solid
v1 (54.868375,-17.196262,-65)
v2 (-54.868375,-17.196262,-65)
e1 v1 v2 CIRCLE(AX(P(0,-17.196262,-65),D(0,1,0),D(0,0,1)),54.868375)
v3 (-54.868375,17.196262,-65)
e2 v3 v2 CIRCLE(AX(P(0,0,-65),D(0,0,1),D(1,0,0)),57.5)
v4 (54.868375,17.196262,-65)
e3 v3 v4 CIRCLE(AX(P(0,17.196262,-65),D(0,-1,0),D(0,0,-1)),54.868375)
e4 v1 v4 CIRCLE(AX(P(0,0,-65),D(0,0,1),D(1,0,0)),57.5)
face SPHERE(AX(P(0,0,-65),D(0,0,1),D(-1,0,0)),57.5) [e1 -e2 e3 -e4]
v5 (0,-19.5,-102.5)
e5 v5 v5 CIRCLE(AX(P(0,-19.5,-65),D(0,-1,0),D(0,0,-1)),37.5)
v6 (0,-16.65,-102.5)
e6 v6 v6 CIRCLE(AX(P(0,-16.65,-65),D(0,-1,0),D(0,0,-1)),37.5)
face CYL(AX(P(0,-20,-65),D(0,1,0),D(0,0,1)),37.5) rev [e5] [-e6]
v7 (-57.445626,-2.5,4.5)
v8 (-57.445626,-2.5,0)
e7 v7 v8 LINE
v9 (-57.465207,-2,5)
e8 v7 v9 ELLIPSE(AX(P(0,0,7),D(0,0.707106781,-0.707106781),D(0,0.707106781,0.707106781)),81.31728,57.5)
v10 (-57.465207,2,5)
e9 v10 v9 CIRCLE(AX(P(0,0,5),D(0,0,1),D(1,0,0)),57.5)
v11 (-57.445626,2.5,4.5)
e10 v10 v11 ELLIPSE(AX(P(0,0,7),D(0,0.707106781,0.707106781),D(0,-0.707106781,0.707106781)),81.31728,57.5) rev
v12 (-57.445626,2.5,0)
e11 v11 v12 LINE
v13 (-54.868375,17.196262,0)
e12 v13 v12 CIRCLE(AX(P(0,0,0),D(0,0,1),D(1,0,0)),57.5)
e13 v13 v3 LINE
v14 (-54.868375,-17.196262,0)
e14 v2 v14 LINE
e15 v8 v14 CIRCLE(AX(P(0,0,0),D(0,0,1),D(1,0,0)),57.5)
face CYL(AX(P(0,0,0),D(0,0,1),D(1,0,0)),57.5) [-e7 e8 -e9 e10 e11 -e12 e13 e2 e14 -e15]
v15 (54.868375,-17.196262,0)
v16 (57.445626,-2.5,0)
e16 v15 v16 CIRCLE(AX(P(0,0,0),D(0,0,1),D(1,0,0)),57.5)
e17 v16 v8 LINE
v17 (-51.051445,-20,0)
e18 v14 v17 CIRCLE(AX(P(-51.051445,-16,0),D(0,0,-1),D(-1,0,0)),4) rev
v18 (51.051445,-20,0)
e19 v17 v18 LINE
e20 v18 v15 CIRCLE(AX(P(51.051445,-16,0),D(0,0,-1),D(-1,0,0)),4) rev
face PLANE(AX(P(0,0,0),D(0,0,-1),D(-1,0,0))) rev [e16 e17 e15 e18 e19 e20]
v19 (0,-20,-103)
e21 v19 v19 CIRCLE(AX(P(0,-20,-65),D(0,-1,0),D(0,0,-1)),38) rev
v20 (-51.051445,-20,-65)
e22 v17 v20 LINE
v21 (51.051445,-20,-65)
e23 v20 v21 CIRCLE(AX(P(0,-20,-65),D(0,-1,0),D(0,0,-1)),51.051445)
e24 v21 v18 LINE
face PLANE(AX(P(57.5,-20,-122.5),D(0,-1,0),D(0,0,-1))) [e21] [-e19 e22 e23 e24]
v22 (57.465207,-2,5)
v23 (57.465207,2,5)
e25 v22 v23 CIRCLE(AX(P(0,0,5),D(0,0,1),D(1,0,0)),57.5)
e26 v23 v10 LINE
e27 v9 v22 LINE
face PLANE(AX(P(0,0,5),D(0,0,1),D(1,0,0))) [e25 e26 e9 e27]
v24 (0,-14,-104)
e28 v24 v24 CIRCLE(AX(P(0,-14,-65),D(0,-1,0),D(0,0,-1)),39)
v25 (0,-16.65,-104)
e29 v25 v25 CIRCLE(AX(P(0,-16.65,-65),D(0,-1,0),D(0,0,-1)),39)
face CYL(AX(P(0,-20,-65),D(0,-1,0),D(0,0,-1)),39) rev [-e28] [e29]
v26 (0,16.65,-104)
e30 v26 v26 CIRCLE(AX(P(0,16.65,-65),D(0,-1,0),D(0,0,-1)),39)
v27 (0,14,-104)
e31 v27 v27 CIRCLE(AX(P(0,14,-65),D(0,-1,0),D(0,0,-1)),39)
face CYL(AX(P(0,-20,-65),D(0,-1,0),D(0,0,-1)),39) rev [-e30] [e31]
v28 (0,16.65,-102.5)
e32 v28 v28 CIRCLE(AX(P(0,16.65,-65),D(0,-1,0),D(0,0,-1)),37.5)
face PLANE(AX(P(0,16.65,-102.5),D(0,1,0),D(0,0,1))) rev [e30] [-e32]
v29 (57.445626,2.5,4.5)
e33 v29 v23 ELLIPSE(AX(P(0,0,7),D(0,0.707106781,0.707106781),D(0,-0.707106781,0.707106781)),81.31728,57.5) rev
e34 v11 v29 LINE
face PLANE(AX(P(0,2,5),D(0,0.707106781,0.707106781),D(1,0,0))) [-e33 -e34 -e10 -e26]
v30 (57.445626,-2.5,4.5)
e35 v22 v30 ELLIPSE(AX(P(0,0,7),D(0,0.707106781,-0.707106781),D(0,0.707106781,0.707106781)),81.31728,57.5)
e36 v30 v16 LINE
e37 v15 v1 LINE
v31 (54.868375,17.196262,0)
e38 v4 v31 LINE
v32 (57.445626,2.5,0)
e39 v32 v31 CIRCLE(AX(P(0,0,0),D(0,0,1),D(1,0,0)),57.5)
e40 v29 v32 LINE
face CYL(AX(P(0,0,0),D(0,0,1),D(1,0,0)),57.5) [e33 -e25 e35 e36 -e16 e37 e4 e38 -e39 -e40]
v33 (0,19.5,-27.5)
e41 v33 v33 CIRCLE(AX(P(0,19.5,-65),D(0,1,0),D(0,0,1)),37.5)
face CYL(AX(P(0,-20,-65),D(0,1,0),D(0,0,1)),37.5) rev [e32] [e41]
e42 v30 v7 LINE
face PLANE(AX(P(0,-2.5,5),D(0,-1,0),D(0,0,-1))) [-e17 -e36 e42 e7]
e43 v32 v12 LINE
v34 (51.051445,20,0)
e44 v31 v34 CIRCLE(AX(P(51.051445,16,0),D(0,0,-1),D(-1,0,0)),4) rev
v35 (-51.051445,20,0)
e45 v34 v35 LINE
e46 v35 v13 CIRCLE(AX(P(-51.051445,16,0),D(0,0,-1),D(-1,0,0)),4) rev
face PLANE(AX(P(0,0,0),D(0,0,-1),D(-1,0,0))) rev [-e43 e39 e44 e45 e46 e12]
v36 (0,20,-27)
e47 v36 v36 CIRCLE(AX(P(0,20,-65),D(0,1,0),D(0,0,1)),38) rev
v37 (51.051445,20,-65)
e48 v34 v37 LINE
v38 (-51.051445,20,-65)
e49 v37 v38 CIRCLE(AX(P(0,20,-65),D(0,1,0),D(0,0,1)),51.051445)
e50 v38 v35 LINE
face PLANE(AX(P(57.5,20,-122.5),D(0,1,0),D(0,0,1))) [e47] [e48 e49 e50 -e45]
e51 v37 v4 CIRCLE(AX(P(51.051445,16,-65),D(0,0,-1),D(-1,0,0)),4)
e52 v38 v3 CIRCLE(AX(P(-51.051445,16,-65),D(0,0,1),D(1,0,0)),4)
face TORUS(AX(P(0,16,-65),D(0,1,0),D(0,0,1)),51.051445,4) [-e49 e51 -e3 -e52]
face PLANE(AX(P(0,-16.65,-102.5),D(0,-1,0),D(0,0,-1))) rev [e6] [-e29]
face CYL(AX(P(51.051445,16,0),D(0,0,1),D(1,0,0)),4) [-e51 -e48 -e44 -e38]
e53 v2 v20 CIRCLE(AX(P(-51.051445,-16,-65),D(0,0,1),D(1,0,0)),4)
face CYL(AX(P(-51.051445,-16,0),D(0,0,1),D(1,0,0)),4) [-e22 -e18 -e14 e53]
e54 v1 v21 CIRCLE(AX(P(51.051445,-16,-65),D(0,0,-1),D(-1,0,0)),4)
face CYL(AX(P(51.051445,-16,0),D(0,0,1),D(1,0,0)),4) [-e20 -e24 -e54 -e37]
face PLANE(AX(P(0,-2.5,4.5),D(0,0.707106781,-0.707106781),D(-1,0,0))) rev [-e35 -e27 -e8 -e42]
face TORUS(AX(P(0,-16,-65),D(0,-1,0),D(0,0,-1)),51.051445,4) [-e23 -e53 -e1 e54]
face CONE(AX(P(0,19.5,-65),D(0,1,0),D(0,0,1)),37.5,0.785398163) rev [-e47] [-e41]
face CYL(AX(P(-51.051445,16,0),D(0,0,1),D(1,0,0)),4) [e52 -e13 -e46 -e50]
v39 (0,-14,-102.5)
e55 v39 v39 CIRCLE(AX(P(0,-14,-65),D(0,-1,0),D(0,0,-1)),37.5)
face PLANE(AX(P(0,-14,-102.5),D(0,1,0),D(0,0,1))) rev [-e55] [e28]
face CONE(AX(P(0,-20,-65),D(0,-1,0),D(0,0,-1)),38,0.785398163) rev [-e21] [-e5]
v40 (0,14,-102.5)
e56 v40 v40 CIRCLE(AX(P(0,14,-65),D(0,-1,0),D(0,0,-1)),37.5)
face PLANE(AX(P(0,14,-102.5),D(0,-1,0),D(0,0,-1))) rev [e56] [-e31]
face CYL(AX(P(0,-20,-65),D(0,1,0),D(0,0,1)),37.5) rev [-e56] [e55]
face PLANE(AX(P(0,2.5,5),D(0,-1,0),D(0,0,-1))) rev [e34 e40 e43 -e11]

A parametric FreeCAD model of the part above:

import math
import FreeCAD as App
import Part
import Sketcher
Q = App.Units.Quantity


def edges_at(feature, points):
    """Names of the edges that pass closest to the given points."""
    edges = feature.Shape.Edges
    near = lambda p: min(range(len(edges)), key=lambda i: edges[i].distToShape(Part.Vertex(*p))[0])
    return sorted({f"Edge{near(p) + 1}" for p in points})


def add_polygon(sketch, points):
    """Adds a closed chain of lines whose ends are joined by coincident constraints."""
    first, n = sketch.GeometryCount, len(points)
    for a, b in zip(points, points[1:] + points[:1]):
        sketch.addGeometry(Part.LineSegment(App.Vector(*a, 0), App.Vector(*b, 0)), False)
    for i in range(n):
        sketch.addConstraint(Sketcher.Constraint("Coincident", first + i, 2, first + (i + 1) % n, 1))

doc = App.newDocument("Part")
body = doc.addObject("PartDesign::Body", "Body")

# Sketch on XZ plane
sketch1 = doc.addObject("Sketcher::SketchObject", "Sketch")
body.addObject(sketch1)
sketch1.AttachmentSupport = (doc.XZ_Plane, [""])
sketch1.MapMode = "FlatFace"
sketch1.addGeometry([
    Part.ArcOfCircle(Part.Circle(App.Vector(0, -65, 0), App.Vector(0, 0, 1), 37.5), math.radians(90), math.radians(270)),  # 0
    Part.LineSegment(App.Vector(0, -27.5, 0), App.Vector(0, 0, 0)),  # 1
    Part.LineSegment(App.Vector(0, 0, 0), App.Vector(57.5, 0, 0)),  # 2
    Part.LineSegment(App.Vector(57.5, 0, 0), App.Vector(57.5, -65, 0)),  # 3
    Part.ArcOfCircle(Part.Circle(App.Vector(0, -65, 0), App.Vector(0, 0, 1), 57.5), math.radians(-90), math.radians(0)),  # 4
    Part.LineSegment(App.Vector(0, -122.5, 0), App.Vector(0, -102.5, 0)),  # 5
], False)
sketch1.addConstraint([
    Sketcher.Constraint("Coincident", 0, 1, 1, 1),
    Sketcher.Constraint("Coincident", 1, 2, 2, 1),
    Sketcher.Constraint("Coincident", 2, 2, 3, 1),
    Sketcher.Constraint("Tangent", 3, 2, 4, 2),
    Sketcher.Constraint("Coincident", 4, 1, 5, 1),
    Sketcher.Constraint("Coincident", 5, 2, 0, 2),
    Sketcher.Constraint("Vertical", 1),
    Sketcher.Constraint("Horizontal", 2),
    Sketcher.Constraint("Vertical", 3),
    Sketcher.Constraint("Vertical", 5),
    Sketcher.Constraint("Coincident", 1, 2, -1, 1),
    Sketcher.Constraint("Coincident", 4, 3, 0, 3),
    Sketcher.Constraint("PointOnObject", 0, 3, -2),
    Sketcher.Constraint("PointOnObject", 4, 1, -2),
    Sketcher.Constraint("Radius", 0, Q("37.5 mm")),
    Sketcher.Constraint("Radius", 4, Q("57.5 mm")),
    Sketcher.Constraint("DistanceY", 3, 2, 3, 1, Q("65 mm")),
])
revolution = doc.addObject("PartDesign::Revolution", "Revolution")
body.addObject(revolution)
revolution.Profile = sketch1
revolution.ReferenceAxis = (sketch1, ["V_Axis"])
revolution.Angle = 360

# Sketch on XY plane
sketch2 = doc.addObject("Sketcher::SketchObject", "Sketch001")
body.addObject(sketch2)
sketch2.AttachmentSupport = (doc.XY_Plane, [""])
sketch2.MapMode = "FlatFace"
add_polygon(sketch2, [(-78.861, 78.861), (-78.861, -78.861), (78.861, -78.861), (78.861, 78.861)])  # lines 0-3
add_polygon(sketch2, [(57.5, -20), (-57.5, -20), (-57.5, 20), (57.5, 20)])  # lines 4-7
sketch2.addConstraint([
    Sketcher.Constraint("Vertical", 0),
    Sketcher.Constraint("Horizontal", 1),
    Sketcher.Constraint("Vertical", 2),
    Sketcher.Constraint("Horizontal", 3),
    Sketcher.Constraint("Horizontal", 4),
    Sketcher.Constraint("Vertical", 5),
    Sketcher.Constraint("Horizontal", 6),
    Sketcher.Constraint("Vertical", 7),
    Sketcher.Constraint("Symmetric", 0, 2, 2, 2, -1, 1),
    Sketcher.Constraint("Symmetric", 4, 2, 6, 2, -1, 1),
    Sketcher.Constraint("Equal", 3, 0),
    Sketcher.Constraint("DistanceX", 4, 2, 4, 1, Q("115 mm")),
    Sketcher.Constraint("DistanceY", 5, 1, 5, 2, Q("40 mm")),
    Sketcher.Constraint("DistanceX", 1, 1, 1, 2, Q("157.722 mm")),
])
pocket1 = doc.addObject("PartDesign::Pocket", "Pocket")
body.addObject(pocket1)
pocket1.Profile = sketch2
pocket1.Type = "ThroughAll"

# Sketch on XZ plane
sketch3 = doc.addObject("Sketcher::SketchObject", "Sketch002")
body.addObject(sketch3)
sketch3.AttachmentSupport = (doc.XZ_Plane, [""])
sketch3.MapMode = "FlatFace"
sketch3.addGeometry(Part.Circle(App.Vector(0, -65, 0), App.Vector(0, 0, 1), 37.5), False)
sketch3.addConstraint([
    Sketcher.Constraint("PointOnObject", 0, 3, -2),
    Sketcher.Constraint("Diameter", 0, Q("75 mm")),
    Sketcher.Constraint("DistanceY", 0, 3, -1, 1, Q("65 mm")),
])
pocket2 = doc.addObject("PartDesign::Pocket", "Pocket001")
body.addObject(pocket2)
pocket2.Profile = sketch3
pocket2.Type = "ThroughAll"
pocket2.Midplane = True
doc.recompute()

fillet = doc.addObject("PartDesign::Fillet", "Fillet")
body.addObject(fillet)
fillet.Base = (pocket2, edges_at(pocket2, [
    (0, -20, -118.91),
    (0, 20, -118.91),
    (-53.91, 20, -32.5),
    (53.91, 20, -32.5),
    (53.91, -20, -32.5),
    (-53.91, -20, -32.5),
]))
fillet.Radius = 4

# Sketch on YZ plane
sketch4 = doc.addObject("Sketcher::SketchObject", "Sketch003")
body.addObject(sketch4)
sketch4.AttachmentSupport = (doc.YZ_Plane, [""])
sketch4.MapMode = "FlatFace"
add_polygon(sketch4, [(16.65, -102.5), (14, -102.5), (14, -104), (16.65, -104)])  # lines 0-3
add_polygon(sketch4, [(-14, -102.5), (-16.65, -102.5), (-16.65, -104), (-14, -104)])  # lines 4-7
sketch4.addGeometry(Part.LineSegment(App.Vector(-16.65, -65, 0), App.Vector(16.65, -65, 0)), True)  # axis
sketch4.addConstraint([
    Sketcher.Constraint("Horizontal", 0),
    Sketcher.Constraint("Vertical", 1),
    Sketcher.Constraint("Horizontal", 2),
    Sketcher.Constraint("Vertical", 3),
    Sketcher.Constraint("Horizontal", 4),
    Sketcher.Constraint("Vertical", 5),
    Sketcher.Constraint("Horizontal", 6),
    Sketcher.Constraint("Vertical", 7),
    Sketcher.Constraint("Horizontal", 8),
    Sketcher.Constraint("Symmetric", 3, 2, 4, 2, -2),
    Sketcher.Constraint("Symmetric", 1, 2, 6, 2, -2),
    Sketcher.Constraint("Vertical", 5, 2, 8, 1),
    Sketcher.Constraint("Vertical", 3, 2, 8, 2),
    Sketcher.Constraint("DistanceX", 8, 1, 8, 2, Q("33.3 mm")),
    Sketcher.Constraint("DistanceY", 1, 2, 1, 1, Q("1.5 mm")),
    Sketcher.Constraint("DistanceX", -1, 1, 0, 2, Q("14 mm")),
    Sketcher.Constraint("DistanceY", 1, 2, -1, 1, Q("104 mm")),
    Sketcher.Constraint("DistanceY", 8, 1, -1, 1, Q("65 mm")),
])
groove = doc.addObject("PartDesign::Groove", "Groove")
body.addObject(groove)
groove.Profile = sketch4
groove.ReferenceAxis = (sketch4, ["Axis0"])
groove.Angle = 360

# Sketch on XY plane
sketch5 = doc.addObject("Sketcher::SketchObject", "Sketch004")
body.addObject(sketch5)
sketch5.AttachmentSupport = (doc.XY_Plane, [""])
sketch5.MapMode = "FlatFace"
sketch5.AttachmentOffset = App.Placement(App.Vector(0, 0, 5), App.Rotation())
sketch5.addGeometry([
    Part.LineSegment(App.Vector(-57.445626, -2.5, 0), App.Vector(57.445626, -2.5, 0)),  # 0
    Part.ArcOfCircle(Part.Circle(App.Vector(-0.000001, 0, 0), App.Vector(0, 0, 1), 57.500001), math.radians(-2.491906), math.radians(0)),  # 1
    Part.ArcOfCircle(Part.Circle(App.Vector(0.000001, 0, 0), App.Vector(0, 0, 1), 57.499999), math.radians(0), math.radians(2.491906)),  # 2
    Part.LineSegment(App.Vector(57.445626, 2.5, 0), App.Vector(-57.445626, 2.5, 0)),  # 3
    Part.ArcOfCircle(Part.Circle(App.Vector(0.000001, 0, 0), App.Vector(0, 0, 1), 57.500001), math.radians(177.508094), math.radians(180)),  # 4
    Part.ArcOfCircle(Part.Circle(App.Vector(-0.000001, 0, 0), App.Vector(0, 0, 1), 57.499999), math.radians(180), math.radians(182.491906)),  # 5
], False)
sketch5.addConstraint([
    Sketcher.Constraint("Coincident", 0, 2, 1, 1),
    Sketcher.Constraint("Tangent", 1, 2, 2, 1),
    Sketcher.Constraint("Coincident", 2, 2, 3, 1),
    Sketcher.Constraint("Coincident", 3, 2, 4, 1),
    Sketcher.Constraint("Tangent", 4, 2, 5, 1),
    Sketcher.Constraint("Coincident", 5, 2, 0, 1),
    Sketcher.Constraint("Horizontal", 0),
    Sketcher.Constraint("Horizontal", 3),
    Sketcher.Constraint("Coincident", 1, 3, -1, 1),
    Sketcher.Constraint("Coincident", 4, 3, -1, 1),
    Sketcher.Constraint("Equal", 1, 2),
    Sketcher.Constraint("Equal", 2, 4),
    Sketcher.Constraint("Equal", 4, 5),
    Sketcher.Constraint("PointOnObject", 1, 2, -1),
    Sketcher.Constraint("PointOnObject", 4, 2, -1),
    Sketcher.Constraint("Vertical", 0, 2, 2, 2),
    Sketcher.Constraint("Radius", 1, Q("57.500001 mm")),
    Sketcher.Constraint("DistanceY", 0, 2, 2, 2, Q("5 mm")),
])
pad1 = doc.addObject("PartDesign::Pad", "Pad")
body.addObject(pad1)
pad1.Profile = sketch5
pad1.Length = 5
pad1.Reversed = True
doc.recompute()

chamfer = doc.addObject("PartDesign::Chamfer", "Chamfer")
body.addObject(chamfer)
chamfer.Base = (pad1, edges_at(pad1, [
    (0, -20, -102.5),
    (0, 20, -102.5),
    (0, -2.5, 5),
    (0, 2.5, 5),
]))
chamfer.Size = 0.5

doc.recompute()
